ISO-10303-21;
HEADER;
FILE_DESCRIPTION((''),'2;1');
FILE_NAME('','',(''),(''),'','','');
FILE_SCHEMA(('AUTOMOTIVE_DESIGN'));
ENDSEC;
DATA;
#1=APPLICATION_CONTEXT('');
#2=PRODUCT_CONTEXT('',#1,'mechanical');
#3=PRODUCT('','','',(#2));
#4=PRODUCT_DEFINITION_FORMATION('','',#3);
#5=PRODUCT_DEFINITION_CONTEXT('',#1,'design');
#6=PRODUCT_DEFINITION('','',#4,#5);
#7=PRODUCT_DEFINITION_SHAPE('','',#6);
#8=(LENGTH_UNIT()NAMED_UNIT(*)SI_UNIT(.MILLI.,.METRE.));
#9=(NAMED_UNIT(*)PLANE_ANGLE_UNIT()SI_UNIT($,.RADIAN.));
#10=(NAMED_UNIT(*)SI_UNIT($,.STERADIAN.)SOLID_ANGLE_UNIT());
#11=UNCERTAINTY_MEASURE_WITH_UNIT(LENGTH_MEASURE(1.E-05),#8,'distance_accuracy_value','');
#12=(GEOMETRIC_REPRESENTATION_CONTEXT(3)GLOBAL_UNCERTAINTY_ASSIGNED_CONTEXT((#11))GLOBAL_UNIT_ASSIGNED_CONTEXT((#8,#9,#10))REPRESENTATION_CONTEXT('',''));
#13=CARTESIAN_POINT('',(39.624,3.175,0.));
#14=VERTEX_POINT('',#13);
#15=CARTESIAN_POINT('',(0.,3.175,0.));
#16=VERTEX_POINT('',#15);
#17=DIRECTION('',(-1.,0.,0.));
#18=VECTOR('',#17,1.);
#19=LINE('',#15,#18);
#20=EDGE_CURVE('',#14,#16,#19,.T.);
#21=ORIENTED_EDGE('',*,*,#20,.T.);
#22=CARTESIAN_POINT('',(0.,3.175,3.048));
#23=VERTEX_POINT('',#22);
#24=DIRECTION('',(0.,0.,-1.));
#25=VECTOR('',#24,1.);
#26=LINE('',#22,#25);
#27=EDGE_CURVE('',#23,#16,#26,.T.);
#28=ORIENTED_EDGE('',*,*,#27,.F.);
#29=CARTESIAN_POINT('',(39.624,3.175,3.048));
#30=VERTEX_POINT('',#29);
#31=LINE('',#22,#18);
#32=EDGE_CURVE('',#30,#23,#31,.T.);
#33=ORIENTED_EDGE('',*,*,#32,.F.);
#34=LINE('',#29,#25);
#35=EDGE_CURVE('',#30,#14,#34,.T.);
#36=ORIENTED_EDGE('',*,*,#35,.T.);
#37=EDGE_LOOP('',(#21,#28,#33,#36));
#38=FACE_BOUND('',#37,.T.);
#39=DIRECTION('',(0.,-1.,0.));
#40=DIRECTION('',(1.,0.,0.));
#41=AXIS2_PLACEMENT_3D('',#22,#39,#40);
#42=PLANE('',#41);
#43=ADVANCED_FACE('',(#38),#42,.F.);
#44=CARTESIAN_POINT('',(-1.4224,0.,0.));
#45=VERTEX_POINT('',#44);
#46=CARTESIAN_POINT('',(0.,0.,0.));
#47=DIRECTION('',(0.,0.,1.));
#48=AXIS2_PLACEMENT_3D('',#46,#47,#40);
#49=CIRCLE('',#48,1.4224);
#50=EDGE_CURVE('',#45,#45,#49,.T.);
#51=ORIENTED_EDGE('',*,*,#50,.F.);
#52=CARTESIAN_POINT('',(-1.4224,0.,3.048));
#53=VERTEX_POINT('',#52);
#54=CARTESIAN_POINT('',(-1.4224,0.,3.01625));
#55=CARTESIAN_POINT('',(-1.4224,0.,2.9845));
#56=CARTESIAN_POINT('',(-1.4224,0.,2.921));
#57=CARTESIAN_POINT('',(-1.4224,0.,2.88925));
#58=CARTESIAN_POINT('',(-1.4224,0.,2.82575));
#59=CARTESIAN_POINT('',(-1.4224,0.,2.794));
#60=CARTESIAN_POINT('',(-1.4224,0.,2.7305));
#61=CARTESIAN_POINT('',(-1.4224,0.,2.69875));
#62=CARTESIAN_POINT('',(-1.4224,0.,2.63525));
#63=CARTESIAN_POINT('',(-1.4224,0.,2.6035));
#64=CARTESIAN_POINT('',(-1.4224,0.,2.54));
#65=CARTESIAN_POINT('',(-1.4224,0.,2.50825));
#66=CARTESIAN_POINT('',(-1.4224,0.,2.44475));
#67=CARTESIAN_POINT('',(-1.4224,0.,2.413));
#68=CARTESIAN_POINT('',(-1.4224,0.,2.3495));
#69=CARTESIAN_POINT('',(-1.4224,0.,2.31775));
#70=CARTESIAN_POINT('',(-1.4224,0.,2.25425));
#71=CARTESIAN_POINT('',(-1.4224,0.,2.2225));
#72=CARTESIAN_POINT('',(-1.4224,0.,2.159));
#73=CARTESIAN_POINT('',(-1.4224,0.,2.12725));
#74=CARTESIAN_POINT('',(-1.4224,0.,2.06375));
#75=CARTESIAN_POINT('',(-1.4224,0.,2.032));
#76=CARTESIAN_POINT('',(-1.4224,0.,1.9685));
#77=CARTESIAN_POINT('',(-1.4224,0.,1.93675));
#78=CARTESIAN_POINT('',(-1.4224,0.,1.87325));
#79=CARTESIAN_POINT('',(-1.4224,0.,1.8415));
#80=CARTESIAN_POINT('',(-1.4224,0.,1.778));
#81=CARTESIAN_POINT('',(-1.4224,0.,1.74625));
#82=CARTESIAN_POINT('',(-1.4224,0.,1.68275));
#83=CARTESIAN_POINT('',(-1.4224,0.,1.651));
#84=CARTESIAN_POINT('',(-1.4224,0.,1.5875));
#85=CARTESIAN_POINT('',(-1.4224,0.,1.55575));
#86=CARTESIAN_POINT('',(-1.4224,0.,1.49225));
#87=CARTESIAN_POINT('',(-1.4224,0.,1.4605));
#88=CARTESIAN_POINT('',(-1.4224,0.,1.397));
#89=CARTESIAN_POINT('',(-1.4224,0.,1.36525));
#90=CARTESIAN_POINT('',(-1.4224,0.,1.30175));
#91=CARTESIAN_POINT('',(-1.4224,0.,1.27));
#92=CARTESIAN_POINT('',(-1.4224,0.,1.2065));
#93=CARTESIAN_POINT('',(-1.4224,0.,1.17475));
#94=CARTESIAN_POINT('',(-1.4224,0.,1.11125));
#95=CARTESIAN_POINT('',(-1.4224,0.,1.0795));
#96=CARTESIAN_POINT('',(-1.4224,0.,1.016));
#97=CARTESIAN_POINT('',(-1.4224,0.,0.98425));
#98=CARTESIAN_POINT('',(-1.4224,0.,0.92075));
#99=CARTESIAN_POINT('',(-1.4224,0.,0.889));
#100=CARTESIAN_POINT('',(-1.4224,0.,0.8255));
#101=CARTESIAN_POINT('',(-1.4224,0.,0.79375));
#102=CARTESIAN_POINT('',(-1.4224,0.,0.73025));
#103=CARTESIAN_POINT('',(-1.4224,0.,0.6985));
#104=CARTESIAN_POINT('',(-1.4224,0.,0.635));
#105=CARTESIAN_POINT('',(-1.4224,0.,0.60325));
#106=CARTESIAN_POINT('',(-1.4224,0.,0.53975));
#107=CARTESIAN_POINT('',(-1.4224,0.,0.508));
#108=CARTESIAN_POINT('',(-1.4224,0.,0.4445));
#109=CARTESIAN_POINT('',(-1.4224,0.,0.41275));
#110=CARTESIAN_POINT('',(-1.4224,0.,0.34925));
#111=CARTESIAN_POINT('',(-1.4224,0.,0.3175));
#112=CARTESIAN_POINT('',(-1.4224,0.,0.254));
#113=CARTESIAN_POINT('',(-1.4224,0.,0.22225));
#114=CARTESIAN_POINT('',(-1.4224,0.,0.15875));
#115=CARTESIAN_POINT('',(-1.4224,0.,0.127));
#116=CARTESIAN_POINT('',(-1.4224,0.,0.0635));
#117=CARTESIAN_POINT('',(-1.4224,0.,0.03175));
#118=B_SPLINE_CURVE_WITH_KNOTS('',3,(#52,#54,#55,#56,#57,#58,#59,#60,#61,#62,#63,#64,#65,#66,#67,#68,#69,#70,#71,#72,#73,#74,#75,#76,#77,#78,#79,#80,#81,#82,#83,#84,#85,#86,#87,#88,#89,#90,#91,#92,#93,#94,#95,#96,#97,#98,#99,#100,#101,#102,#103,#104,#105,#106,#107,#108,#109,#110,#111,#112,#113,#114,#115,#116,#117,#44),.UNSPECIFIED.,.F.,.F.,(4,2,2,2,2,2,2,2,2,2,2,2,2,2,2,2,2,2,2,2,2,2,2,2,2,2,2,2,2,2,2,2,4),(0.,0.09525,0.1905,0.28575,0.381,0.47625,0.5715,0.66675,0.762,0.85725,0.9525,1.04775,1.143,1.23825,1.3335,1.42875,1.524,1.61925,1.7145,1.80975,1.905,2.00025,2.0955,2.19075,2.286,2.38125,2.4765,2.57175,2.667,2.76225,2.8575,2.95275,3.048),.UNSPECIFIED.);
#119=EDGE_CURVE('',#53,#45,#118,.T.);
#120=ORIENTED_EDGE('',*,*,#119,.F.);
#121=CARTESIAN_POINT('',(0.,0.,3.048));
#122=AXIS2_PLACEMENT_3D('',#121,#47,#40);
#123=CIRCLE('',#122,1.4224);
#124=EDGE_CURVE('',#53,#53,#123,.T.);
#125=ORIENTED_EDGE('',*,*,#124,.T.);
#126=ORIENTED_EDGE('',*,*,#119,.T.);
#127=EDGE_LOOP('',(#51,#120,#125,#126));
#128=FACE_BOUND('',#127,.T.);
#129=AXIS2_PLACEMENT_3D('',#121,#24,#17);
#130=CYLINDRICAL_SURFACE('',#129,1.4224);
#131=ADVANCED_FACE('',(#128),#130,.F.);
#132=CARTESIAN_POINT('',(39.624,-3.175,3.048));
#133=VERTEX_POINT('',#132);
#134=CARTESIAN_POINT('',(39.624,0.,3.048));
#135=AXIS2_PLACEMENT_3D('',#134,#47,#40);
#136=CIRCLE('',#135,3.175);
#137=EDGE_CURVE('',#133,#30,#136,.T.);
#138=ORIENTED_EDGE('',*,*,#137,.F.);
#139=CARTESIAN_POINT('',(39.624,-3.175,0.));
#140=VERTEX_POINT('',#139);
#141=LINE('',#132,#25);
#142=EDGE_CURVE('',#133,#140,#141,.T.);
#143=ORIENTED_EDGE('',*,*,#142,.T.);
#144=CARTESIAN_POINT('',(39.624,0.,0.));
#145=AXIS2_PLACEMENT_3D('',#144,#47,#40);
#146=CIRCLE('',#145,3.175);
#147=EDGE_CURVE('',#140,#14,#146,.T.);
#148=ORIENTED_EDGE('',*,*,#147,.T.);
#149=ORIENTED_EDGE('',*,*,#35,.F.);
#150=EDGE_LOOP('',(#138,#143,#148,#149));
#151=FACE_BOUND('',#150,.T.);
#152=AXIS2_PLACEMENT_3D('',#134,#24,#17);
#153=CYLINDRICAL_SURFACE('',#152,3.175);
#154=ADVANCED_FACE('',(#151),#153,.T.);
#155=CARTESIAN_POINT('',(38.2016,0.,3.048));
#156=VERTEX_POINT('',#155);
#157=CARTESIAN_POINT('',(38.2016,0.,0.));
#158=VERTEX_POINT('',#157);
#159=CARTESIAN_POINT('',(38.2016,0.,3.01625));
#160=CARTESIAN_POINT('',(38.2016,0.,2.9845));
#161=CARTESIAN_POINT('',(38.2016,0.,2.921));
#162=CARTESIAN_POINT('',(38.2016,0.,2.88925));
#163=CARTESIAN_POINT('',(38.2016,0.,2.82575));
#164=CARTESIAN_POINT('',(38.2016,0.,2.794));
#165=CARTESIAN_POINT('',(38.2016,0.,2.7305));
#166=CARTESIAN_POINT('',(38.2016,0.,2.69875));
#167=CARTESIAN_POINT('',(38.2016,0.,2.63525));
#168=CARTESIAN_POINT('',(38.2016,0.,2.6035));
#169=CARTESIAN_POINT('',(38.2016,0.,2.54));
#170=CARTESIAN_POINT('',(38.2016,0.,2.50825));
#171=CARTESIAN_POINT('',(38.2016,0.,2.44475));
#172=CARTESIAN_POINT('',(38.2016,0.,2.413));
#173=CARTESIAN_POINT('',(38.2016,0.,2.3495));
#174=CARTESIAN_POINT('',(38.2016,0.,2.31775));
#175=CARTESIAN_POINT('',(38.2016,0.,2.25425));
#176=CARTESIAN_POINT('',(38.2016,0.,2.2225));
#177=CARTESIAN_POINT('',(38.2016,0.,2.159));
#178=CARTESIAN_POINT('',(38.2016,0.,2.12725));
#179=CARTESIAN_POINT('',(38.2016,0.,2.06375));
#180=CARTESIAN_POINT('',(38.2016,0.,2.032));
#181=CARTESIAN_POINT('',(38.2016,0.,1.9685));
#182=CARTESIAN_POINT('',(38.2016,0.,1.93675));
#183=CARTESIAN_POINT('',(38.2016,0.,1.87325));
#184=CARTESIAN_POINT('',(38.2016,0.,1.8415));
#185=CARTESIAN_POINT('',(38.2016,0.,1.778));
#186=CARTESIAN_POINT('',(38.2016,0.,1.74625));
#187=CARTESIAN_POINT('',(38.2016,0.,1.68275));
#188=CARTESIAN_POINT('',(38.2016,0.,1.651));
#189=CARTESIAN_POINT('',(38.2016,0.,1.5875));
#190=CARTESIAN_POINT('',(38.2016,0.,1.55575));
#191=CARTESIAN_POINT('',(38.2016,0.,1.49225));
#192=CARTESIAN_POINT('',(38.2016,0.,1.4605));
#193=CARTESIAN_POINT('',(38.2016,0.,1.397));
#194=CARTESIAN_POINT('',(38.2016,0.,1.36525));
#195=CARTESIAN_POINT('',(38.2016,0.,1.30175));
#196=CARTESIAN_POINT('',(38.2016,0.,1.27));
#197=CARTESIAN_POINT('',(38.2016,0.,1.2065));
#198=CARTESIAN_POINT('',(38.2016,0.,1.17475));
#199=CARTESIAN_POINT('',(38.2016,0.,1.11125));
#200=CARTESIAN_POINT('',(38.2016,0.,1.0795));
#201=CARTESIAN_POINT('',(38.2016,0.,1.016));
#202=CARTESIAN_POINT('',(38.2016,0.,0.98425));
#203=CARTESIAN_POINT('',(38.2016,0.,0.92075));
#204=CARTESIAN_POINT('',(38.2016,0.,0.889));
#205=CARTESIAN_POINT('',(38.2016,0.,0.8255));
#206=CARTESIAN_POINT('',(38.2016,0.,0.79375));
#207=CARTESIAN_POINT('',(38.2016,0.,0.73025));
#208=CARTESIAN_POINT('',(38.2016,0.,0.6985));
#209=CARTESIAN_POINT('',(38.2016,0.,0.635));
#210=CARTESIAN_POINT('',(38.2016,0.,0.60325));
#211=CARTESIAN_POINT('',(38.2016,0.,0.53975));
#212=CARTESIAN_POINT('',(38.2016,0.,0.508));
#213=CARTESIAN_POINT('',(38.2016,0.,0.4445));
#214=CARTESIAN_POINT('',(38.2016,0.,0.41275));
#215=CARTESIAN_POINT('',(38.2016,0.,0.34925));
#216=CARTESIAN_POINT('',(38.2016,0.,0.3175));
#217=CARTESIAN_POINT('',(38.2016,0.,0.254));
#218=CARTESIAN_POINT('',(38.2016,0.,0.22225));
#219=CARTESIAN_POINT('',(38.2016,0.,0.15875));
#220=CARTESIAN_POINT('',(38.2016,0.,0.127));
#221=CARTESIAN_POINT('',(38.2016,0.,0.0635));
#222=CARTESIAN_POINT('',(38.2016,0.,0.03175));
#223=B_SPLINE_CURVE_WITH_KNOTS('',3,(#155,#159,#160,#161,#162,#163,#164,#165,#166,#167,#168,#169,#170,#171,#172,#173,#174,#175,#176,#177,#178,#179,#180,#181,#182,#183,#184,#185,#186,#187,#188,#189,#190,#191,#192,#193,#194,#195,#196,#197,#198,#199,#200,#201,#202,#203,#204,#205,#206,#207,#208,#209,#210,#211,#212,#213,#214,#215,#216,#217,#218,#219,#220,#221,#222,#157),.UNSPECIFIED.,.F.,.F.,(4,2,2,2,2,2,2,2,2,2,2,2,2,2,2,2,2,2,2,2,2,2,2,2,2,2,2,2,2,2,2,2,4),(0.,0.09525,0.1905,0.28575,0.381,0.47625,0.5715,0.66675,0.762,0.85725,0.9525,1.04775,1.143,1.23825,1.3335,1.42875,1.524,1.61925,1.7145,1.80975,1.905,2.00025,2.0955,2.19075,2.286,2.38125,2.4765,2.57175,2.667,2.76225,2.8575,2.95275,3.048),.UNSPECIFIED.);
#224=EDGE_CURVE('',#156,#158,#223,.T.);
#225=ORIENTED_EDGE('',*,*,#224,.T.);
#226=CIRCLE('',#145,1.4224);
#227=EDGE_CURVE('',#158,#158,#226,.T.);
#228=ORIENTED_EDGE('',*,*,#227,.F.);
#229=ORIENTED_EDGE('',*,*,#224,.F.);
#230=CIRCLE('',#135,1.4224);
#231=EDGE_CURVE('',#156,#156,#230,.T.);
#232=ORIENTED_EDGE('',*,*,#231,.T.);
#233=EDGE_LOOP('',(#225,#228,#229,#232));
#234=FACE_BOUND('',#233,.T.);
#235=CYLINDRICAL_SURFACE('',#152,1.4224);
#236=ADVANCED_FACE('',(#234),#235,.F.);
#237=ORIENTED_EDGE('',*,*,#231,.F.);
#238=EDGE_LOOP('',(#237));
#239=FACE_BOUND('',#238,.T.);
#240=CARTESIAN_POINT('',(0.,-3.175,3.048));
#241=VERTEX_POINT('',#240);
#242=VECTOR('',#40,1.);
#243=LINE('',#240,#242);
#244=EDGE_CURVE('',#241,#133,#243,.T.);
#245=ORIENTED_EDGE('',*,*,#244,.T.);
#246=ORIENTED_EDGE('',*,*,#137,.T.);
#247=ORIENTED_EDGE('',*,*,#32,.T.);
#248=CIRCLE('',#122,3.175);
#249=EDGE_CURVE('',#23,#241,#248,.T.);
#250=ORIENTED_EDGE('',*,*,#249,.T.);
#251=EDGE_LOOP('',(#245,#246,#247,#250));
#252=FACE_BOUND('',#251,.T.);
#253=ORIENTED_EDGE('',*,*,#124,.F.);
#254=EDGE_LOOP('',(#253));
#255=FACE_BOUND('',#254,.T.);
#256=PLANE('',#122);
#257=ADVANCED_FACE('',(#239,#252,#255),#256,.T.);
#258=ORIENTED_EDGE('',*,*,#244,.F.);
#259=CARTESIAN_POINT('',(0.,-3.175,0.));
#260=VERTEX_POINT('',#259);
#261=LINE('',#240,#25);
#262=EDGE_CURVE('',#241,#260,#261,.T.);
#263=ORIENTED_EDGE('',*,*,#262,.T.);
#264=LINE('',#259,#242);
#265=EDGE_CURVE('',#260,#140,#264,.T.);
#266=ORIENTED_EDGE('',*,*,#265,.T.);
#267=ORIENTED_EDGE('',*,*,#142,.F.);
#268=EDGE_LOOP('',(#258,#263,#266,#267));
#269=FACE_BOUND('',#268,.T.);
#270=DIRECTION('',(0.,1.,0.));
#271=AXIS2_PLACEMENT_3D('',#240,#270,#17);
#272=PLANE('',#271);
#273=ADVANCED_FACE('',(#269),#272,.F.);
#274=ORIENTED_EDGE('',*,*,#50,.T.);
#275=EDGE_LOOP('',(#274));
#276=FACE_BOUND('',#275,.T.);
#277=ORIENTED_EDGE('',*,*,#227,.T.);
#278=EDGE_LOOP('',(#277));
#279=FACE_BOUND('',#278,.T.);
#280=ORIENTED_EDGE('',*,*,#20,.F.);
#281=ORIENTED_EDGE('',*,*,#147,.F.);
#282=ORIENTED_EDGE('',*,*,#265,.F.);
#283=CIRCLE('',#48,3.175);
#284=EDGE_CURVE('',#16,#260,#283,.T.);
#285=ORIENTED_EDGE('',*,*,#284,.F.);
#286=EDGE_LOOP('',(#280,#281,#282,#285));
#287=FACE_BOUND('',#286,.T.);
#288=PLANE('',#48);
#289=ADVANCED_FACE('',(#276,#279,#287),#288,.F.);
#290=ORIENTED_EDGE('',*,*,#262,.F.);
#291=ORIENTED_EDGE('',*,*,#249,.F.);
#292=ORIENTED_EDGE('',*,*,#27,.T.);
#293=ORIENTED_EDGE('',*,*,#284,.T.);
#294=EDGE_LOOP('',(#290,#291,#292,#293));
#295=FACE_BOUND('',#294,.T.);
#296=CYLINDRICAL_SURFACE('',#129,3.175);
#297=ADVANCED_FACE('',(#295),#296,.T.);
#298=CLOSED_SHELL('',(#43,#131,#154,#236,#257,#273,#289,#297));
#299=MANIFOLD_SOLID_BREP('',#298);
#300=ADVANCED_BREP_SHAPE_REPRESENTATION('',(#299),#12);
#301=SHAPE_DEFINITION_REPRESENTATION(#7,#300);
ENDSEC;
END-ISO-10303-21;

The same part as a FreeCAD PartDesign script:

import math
import FreeCAD as App
import Part
import Sketcher
Q = App.Units.Quantity

doc = App.newDocument("Part")
body = doc.addObject("PartDesign::Body", "Body")

# Sketch on XY plane
sketch1 = body.newObject("Sketcher::SketchObject", "Sketch")
sketch1.AttachmentSupport = (doc.getObject("XY_Plane"), [""])
sketch1.MapMode = "FlatFace"
sketch1.addGeometry([
    Part.LineSegment(App.Vector(39.624, 3.175, 0), App.Vector(0, 3.175, 0)),  # 0
    Part.ArcOfCircle(Part.Circle(App.Vector(0, 0, 0), App.Vector(0, 0, 1), 3.175), math.radians(90), math.radians(270)),  # 1
    Part.LineSegment(App.Vector(0, -3.175, 0), App.Vector(39.624, -3.175, 0)),  # 2
    Part.ArcOfCircle(Part.Circle(App.Vector(39.624, 0, 0), App.Vector(0, 0, 1), 3.175), math.radians(-90), math.radians(90)),  # 3
    Part.Circle(App.Vector(39.624, 0, 0), App.Vector(0, 0, 1), 1.4224),  # 4
    Part.Circle(App.Vector(0, 0, 0), App.Vector(0, 0, 1), 1.4224),  # 5
], False)
sketch1.addConstraint([
    Sketcher.Constraint("Tangent", 0, 2, 1, 1),
    Sketcher.Constraint("Tangent", 1, 2, 2, 1),
    Sketcher.Constraint("Tangent", 2, 2, 3, 1),
    Sketcher.Constraint("Tangent", 3, 2, 0, 1),
    Sketcher.Constraint("Horizontal", 0),
    Sketcher.Constraint("Horizontal", 2),
    Sketcher.Constraint("Coincident", 1, 3, -1, 1),
    Sketcher.Constraint("Coincident", 5, 3, -1, 1),
    Sketcher.Constraint("Coincident", 4, 3, 3, 3),
    Sketcher.Constraint("Equal", 4, 5),
    Sketcher.Constraint("Diameter", 4, Q("0.112 in")),
    Sketcher.Constraint("Radius", 1, Q("0.125 in")),
    Sketcher.Constraint("DistanceX", 0, 2, 0, 1, Q("1.56 in")),
])
pad1 = body.newObject("PartDesign::Pad", "Pad")
pad1.Profile = sketch1
pad1.Length = Q("0.12 in")

doc.recompute()
